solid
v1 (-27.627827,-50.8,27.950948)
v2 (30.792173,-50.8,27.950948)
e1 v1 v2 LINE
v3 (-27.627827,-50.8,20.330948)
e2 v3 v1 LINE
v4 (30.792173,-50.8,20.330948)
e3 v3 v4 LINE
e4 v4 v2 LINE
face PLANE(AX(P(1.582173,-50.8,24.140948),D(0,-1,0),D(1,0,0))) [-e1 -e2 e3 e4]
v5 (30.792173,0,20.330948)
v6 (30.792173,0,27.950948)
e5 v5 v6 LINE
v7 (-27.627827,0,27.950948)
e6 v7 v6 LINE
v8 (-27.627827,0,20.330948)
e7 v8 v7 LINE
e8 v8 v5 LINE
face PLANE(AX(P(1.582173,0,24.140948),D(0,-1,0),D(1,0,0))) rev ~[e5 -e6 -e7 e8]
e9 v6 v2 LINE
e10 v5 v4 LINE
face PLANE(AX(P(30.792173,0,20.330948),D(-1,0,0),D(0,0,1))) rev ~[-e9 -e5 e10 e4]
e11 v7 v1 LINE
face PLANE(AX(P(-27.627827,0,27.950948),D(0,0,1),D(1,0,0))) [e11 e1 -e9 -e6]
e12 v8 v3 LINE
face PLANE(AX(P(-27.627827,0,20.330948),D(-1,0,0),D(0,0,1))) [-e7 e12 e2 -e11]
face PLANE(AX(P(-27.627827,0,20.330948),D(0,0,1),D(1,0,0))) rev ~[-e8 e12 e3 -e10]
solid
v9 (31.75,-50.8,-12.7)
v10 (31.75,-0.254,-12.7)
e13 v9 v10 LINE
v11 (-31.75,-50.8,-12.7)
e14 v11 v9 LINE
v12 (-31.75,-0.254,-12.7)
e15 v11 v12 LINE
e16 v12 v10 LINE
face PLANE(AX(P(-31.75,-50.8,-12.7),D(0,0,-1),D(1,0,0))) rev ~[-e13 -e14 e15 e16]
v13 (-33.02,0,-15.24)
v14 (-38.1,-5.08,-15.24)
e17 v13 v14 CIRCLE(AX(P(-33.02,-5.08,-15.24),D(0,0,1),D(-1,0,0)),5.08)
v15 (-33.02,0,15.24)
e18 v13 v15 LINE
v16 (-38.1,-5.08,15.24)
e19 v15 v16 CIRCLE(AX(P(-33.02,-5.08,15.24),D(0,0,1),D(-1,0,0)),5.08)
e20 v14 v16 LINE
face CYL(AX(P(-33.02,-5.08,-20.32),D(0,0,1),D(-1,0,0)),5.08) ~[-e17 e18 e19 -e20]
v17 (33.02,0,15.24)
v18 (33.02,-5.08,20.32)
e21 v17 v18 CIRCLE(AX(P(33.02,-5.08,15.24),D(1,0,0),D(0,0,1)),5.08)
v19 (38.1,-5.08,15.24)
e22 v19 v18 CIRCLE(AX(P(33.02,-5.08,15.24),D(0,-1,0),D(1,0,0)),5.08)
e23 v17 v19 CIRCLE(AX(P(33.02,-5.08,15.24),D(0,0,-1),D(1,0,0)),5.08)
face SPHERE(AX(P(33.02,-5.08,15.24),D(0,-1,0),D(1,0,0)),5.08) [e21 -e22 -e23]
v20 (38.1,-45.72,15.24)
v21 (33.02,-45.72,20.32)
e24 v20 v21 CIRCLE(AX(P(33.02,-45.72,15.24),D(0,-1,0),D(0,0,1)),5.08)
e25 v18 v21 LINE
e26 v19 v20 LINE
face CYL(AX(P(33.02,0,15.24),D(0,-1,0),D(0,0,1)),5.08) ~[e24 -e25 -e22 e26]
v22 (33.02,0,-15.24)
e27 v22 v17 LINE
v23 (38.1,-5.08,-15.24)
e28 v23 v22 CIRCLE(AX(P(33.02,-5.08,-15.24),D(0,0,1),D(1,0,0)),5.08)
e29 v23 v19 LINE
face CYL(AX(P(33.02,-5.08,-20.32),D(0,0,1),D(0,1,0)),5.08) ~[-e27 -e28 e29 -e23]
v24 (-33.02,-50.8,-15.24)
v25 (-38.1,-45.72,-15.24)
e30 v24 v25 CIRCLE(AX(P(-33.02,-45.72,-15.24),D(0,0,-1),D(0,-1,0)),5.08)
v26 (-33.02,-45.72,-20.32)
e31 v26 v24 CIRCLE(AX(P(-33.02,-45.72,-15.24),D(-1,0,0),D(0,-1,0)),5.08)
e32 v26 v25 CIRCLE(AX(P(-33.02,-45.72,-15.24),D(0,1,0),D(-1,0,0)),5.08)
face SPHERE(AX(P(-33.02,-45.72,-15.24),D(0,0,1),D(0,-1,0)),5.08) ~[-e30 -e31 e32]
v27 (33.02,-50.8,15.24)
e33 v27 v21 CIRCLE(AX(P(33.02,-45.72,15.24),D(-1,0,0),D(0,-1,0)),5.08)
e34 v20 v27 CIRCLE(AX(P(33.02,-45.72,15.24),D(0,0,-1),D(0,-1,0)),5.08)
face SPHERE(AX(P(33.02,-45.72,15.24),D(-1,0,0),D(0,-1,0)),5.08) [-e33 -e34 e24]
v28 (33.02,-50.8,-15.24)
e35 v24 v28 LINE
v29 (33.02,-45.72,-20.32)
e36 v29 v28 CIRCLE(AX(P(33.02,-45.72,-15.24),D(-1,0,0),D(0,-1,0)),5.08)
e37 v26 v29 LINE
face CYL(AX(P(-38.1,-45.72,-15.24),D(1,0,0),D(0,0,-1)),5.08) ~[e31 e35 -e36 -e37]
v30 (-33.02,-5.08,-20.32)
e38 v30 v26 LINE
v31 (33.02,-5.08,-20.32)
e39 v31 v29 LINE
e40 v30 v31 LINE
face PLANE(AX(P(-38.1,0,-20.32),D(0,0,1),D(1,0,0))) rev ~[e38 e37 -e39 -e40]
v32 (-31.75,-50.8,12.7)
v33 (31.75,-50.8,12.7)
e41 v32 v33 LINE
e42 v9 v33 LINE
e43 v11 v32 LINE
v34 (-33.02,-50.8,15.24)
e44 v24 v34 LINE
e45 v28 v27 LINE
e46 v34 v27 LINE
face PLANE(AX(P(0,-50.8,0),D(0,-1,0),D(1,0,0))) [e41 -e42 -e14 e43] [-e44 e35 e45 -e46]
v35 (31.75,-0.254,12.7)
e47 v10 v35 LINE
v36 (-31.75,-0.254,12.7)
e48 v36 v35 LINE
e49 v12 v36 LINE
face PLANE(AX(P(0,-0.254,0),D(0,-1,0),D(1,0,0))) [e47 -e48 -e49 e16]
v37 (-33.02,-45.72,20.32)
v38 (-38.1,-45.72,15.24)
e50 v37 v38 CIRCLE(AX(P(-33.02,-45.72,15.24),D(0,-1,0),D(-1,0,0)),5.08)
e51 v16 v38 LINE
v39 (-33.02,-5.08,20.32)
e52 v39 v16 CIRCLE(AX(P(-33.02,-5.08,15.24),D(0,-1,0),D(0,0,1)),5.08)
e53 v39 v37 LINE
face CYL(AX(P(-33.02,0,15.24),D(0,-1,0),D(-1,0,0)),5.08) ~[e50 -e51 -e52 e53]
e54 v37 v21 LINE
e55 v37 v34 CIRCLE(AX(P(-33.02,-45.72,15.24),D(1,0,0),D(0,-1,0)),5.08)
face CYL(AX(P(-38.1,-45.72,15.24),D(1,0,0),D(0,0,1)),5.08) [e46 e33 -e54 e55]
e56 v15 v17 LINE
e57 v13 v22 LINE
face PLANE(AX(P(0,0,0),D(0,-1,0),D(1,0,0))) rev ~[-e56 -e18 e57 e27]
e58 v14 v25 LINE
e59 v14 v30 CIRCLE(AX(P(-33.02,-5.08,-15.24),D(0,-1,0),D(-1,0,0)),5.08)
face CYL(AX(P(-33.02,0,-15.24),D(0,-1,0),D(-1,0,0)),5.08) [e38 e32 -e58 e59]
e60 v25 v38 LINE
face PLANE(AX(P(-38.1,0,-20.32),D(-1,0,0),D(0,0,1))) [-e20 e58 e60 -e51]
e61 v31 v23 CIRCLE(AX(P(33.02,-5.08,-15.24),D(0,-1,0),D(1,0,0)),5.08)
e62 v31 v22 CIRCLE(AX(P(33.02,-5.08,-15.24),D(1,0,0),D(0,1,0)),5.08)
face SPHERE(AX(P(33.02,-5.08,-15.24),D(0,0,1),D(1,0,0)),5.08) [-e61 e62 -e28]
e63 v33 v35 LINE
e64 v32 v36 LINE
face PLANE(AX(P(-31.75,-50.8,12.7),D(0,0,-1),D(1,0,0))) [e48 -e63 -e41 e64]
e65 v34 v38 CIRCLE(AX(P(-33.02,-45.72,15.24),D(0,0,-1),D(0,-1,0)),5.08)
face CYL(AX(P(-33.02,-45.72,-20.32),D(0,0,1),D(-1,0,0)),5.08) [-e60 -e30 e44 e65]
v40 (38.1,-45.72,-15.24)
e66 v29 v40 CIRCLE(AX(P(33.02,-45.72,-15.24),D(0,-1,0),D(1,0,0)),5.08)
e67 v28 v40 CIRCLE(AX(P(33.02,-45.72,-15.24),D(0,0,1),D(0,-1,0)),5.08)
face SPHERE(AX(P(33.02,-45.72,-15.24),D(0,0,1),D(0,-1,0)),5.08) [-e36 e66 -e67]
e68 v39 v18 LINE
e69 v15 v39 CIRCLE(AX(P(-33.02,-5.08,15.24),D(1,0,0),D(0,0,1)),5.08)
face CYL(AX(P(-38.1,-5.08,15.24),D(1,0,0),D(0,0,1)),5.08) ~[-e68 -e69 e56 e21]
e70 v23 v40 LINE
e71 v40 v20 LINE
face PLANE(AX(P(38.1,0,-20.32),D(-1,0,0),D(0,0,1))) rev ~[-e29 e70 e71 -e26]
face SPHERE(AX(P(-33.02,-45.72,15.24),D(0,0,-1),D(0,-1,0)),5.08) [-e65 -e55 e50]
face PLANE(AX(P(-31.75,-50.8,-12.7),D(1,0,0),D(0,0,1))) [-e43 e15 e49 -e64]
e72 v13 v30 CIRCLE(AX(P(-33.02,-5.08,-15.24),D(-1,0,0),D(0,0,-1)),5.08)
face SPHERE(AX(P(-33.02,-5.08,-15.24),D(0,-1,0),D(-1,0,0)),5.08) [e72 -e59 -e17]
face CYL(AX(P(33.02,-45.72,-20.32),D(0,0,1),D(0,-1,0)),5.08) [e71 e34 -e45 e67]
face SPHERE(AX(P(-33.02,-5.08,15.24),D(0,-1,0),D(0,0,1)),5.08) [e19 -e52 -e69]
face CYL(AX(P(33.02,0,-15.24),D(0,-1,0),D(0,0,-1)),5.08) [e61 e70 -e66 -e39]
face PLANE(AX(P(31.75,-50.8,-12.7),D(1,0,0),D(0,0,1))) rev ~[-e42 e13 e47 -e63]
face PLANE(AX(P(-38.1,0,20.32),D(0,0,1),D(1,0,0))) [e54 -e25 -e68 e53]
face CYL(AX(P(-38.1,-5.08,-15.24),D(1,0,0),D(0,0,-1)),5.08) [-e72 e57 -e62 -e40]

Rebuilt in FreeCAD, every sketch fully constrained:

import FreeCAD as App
import Part
import Sketcher
Q = App.Units.Quantity


def edges_at(feature, points):
    """Names of the edges that pass closest to the given points."""
    edges = feature.Shape.Edges
    near = lambda p: min(range(len(edges)), key=lambda i: edges[i].distToShape(Part.Vertex(*p))[0])
    return sorted({f"Edge{near(p) + 1}" for p in points})


def add_polygon(sketch, points):
    """Adds a closed chain of lines whose ends are joined by coincident constraints."""
    first, n = sketch.GeometryCount, len(points)
    for a, b in zip(points, points[1:] + points[:1]):
        sketch.addGeometry(Part.LineSegment(App.Vector(*a, 0), App.Vector(*b, 0)), False)
    for i in range(n):
        sketch.addConstraint(Sketcher.Constraint("Coincident", first + i, 2, first + (i + 1) % n, 1))

doc = App.newDocument("Part")
body = doc.addObject("PartDesign::Body", "Body")

sketch1 = body.newObject("Sketcher::SketchObject", "Sketch")
sketch1.AttachmentSupport = (doc.getObject("XZ_Plane"), [""])
sketch1.MapMode = "FlatFace"
add_polygon(sketch1, [(-38, 20), (-38, -20), (38, -20), (38, 20)])
sketch1.addConstraint(Sketcher.Constraint("Vertical", 0))
sketch1.addConstraint(Sketcher.Constraint("Horizontal", 1))
sketch1.addConstraint(Sketcher.Constraint("Vertical", 2))
sketch1.addConstraint(Sketcher.Constraint("Horizontal", 3))
sketch1.addConstraint(Sketcher.Constraint("Symmetric", 0, 2, 2, 2, -1, 1))
sketch1.addConstraint(Sketcher.Constraint("DistanceX", 1, 1, 1, 2, Q("3 in")))
sketch1.addConstraint(Sketcher.Constraint("DistanceY", 0, 2, 0, 1, Q("1.6 in")))
pad1 = body.newObject("PartDesign::Pad", "Pad")
pad1.Profile = sketch1
pad1.Length = Q("2 in")

sketch2 = body.newObject("Sketcher::SketchObject", "Sketch001")
sketch2.AttachmentSupport = (doc.getObject("XZ_Plane"), [""])
sketch2.MapMode = "FlatFace"
sketch2.AttachmentOffset = App.Placement(App.Vector(0, 0, 2 * 25.4), App.Rotation())
add_polygon(sketch2, [(-32, 13), (-32, -13), (32, -13), (32, 13)])
sketch2.addConstraint(Sketcher.Constraint("Vertical", 0))
sketch2.addConstraint(Sketcher.Constraint("Horizontal", 1))
sketch2.addConstraint(Sketcher.Constraint("Vertical", 2))
sketch2.addConstraint(Sketcher.Constraint("Horizontal", 3))
sketch2.addConstraint(Sketcher.Constraint("Symmetric", 0, 2, 2, 2, -1, 1))
sketch2.addConstraint(Sketcher.Constraint("DistanceY", 0, 2, 0, 1, Q("1 in")))
sketch2.addConstraint(Sketcher.Constraint("DistanceX", 1, 1, 1, 2, Q("2.5 in")))
pocket1 = body.newObject("PartDesign::Pocket", "Pocket")
pocket1.Profile = sketch2
pocket1.Length = Q("1.99 in")
doc.recompute()

fillet = body.newObject("PartDesign::Fillet", "Fillet")
fillet.Base = (pocket1, edges_at(pocket1, [
    (-38.1, -50.8, 0),
    (0, -50.8, 20.32),
    (38.1, -50.8, 0),
    (0, -50.8, -20.32),
    (38.1, -25.4, 20.32),
    (38.1, 0, 0),
    (38.1, -25.4, -20.32),
    (-38.1, -25.4, 20.32),
    (0, 0, 20.32),
    (-38.1, -25.4, -20.32),
    (-38.1, 0, 0),
    (0, 0, -20.32),
]))
fillet.Radius = Q("0.2 in")
body2 = doc.addObject("PartDesign::Body", "Body001")

sketch3 = body2.newObject("Sketcher::SketchObject", "Sketch002")
sketch3.AttachmentSupport = (doc.getObject("XZ_Plane001"), [""])
sketch3.MapMode = "FlatFace"
add_polygon(sketch3, [(-28, 28), (-28, 20), (31, 20), (31, 28)])
sketch3.addConstraint(Sketcher.Constraint("Vertical", 0))
sketch3.addConstraint(Sketcher.Constraint("Horizontal", 1))
sketch3.addConstraint(Sketcher.Constraint("Vertical", 2))
sketch3.addConstraint(Sketcher.Constraint("Horizontal", 3))
sketch3.addConstraint(Sketcher.Constraint("DistanceX", 1, 1, 1, 2, Q("2.3 in")))
sketch3.addConstraint(Sketcher.Constraint("DistanceY", 0, 2, 0, 1, Q("0.3 in")))
sketch3.addConstraint(Sketcher.Constraint("DistanceY", -1, 1, 2, 2, 27.950948))
sketch3.addConstraint(Sketcher.Constraint("DistanceX", 0, 2, -1, 1, 27.627827))
pad2 = body2.newObject("PartDesign::Pad", "Pad001")
pad2.Profile = sketch3
pad2.Length = Q("2 in")

doc.recompute()
